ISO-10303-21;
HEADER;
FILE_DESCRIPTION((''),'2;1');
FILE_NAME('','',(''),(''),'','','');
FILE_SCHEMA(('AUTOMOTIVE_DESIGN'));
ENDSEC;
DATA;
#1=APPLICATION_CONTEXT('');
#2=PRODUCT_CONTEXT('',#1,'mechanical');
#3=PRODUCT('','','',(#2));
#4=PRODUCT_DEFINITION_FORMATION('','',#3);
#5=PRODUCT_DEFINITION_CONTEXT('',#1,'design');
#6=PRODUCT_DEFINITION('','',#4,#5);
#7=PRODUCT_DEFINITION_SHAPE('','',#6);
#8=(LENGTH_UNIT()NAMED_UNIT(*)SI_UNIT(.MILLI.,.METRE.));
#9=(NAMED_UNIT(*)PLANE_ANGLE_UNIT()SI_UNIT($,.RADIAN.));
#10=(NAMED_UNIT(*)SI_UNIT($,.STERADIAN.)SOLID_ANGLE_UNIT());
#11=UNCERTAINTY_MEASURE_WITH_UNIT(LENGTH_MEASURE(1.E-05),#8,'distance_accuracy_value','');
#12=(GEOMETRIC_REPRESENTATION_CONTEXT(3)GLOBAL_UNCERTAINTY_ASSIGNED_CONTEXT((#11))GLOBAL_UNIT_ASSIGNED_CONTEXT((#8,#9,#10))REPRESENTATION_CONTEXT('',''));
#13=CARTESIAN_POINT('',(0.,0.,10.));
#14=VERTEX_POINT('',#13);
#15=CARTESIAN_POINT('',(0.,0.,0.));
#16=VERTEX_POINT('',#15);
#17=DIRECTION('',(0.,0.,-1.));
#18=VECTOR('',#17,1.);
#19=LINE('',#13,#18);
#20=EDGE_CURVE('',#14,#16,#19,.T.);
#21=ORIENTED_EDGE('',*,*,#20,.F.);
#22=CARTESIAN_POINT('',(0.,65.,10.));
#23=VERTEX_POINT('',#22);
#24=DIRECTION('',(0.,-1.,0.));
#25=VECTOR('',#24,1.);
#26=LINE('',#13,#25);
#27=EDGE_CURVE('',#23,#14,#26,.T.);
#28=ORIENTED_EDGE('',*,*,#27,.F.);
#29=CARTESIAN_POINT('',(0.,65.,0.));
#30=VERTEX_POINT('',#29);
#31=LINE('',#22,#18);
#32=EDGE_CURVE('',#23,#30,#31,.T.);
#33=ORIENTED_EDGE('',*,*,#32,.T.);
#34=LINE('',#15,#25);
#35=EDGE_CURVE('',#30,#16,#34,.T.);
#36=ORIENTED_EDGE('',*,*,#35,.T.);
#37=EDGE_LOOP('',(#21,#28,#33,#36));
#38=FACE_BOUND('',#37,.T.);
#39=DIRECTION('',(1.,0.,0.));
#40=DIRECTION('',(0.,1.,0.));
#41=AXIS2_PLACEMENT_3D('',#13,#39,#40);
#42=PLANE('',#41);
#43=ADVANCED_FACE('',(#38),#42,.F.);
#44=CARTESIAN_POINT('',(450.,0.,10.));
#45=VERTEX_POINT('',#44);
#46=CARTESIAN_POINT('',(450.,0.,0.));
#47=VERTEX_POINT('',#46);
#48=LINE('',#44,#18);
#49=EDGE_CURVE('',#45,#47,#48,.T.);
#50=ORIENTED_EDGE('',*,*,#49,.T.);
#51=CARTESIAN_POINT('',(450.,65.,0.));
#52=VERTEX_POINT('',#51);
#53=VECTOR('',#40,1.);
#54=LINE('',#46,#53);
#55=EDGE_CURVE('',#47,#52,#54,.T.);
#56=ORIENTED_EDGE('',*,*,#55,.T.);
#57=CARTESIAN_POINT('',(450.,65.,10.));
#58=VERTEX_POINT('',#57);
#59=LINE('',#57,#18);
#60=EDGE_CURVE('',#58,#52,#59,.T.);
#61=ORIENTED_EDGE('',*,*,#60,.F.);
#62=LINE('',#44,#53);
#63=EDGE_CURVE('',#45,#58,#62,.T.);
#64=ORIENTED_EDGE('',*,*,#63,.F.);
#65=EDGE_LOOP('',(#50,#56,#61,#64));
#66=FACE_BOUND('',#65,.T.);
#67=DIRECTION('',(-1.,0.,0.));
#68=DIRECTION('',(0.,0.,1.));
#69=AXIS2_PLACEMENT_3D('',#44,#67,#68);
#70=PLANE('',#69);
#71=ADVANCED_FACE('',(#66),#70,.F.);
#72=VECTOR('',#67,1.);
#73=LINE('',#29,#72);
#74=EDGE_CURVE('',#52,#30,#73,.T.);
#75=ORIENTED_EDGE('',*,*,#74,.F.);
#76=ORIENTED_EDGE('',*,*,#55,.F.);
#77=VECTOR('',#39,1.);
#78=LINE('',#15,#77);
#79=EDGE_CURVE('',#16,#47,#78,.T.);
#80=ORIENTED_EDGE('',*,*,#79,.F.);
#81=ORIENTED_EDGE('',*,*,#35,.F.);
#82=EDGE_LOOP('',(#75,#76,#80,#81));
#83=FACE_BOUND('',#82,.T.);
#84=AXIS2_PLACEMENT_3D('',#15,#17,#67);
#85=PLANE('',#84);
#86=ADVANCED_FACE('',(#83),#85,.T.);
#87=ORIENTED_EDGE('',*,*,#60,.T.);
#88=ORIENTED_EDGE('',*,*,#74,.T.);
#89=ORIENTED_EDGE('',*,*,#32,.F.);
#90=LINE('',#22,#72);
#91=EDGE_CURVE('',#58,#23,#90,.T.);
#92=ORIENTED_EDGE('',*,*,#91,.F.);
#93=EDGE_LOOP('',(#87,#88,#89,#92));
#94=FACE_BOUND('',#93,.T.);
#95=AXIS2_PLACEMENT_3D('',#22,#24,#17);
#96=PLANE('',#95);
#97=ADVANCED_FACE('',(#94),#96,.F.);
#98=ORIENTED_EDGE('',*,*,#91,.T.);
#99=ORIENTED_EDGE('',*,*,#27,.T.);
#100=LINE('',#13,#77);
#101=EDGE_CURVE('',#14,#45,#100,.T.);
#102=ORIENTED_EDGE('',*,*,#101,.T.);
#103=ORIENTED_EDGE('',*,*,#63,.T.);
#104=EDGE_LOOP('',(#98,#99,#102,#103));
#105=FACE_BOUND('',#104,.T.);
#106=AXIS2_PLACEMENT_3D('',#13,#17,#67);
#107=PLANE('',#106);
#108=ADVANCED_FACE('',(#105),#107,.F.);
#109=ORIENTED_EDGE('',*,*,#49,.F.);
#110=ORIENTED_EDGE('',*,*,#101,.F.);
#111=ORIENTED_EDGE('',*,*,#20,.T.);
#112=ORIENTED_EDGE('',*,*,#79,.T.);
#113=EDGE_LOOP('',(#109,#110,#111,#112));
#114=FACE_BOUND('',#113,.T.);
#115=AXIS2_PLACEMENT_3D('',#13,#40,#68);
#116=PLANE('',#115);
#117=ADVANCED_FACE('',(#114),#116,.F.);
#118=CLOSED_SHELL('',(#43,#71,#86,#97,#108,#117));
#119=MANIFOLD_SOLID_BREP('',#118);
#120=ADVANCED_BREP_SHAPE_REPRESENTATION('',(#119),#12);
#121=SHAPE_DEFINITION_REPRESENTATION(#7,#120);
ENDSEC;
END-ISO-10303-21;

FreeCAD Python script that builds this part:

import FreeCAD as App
import Part
import Sketcher


def add_polygon(sketch, points):
    """Adds a closed chain of lines whose ends are joined by coincident constraints."""
    first, n = sketch.GeometryCount, len(points)
    for a, b in zip(points, points[1:] + points[:1]):
        sketch.addGeometry(Part.LineSegment(App.Vector(*a, 0), App.Vector(*b, 0)), False)
    for i in range(n):
        sketch.addConstraint(Sketcher.Constraint("Coincident", first + i, 2, first + (i + 1) % n, 1))

doc = App.newDocument("Part")
params = doc.addObject("Spreadsheet::Sheet", "Params")
for row, (alias, value) in enumerate([
    ("sketch1_width", "450 mm"),
    ("sketch1_height", "65 mm"),
    ("pad1_length", "10 mm"),
], start=1):
    params.set(f"A{row}", alias)
    params.set(f"B{row}", "=" + value)
    params.setAlias(f"B{row}", alias)

body = doc.addObject("PartDesign::Body", "Body")

# Sketch on XY plane
sketch1 = body.newObject("Sketcher::SketchObject", "Sketch")
sketch1.AttachmentSupport = (doc.getObject("XY_Plane"), [""])
sketch1.MapMode = "FlatFace"
add_polygon(sketch1, [(0, 65), (0, 0), (450, 0), (450, 65)])  # lines 0-3
sketch1.addConstraint(Sketcher.Constraint("Vertical", 0))
sketch1.addConstraint(Sketcher.Constraint("Horizontal", 1))
sketch1.addConstraint(Sketcher.Constraint("Vertical", 2))
sketch1.addConstraint(Sketcher.Constraint("Horizontal", 3))
sketch1.addConstraint(Sketcher.Constraint("Coincident", 0, 2, -1, 1))
sketch1.addConstraint(Sketcher.Constraint("DistanceX", 1, 1, 1, 2, 450.0))
sketch1.addConstraint(Sketcher.Constraint("DistanceY", 0, 2, 0, 1, 65.0))
sketch1.setExpression("Constraints[9]", "Params.sketch1_width")
sketch1.setExpression("Constraints[10]", "Params.sketch1_height")
pad1 = body.newObject("PartDesign::Pad", "Pad")
pad1.Profile = sketch1
pad1.setExpression("Length", "Params.pad1_length")

doc.recompute()
